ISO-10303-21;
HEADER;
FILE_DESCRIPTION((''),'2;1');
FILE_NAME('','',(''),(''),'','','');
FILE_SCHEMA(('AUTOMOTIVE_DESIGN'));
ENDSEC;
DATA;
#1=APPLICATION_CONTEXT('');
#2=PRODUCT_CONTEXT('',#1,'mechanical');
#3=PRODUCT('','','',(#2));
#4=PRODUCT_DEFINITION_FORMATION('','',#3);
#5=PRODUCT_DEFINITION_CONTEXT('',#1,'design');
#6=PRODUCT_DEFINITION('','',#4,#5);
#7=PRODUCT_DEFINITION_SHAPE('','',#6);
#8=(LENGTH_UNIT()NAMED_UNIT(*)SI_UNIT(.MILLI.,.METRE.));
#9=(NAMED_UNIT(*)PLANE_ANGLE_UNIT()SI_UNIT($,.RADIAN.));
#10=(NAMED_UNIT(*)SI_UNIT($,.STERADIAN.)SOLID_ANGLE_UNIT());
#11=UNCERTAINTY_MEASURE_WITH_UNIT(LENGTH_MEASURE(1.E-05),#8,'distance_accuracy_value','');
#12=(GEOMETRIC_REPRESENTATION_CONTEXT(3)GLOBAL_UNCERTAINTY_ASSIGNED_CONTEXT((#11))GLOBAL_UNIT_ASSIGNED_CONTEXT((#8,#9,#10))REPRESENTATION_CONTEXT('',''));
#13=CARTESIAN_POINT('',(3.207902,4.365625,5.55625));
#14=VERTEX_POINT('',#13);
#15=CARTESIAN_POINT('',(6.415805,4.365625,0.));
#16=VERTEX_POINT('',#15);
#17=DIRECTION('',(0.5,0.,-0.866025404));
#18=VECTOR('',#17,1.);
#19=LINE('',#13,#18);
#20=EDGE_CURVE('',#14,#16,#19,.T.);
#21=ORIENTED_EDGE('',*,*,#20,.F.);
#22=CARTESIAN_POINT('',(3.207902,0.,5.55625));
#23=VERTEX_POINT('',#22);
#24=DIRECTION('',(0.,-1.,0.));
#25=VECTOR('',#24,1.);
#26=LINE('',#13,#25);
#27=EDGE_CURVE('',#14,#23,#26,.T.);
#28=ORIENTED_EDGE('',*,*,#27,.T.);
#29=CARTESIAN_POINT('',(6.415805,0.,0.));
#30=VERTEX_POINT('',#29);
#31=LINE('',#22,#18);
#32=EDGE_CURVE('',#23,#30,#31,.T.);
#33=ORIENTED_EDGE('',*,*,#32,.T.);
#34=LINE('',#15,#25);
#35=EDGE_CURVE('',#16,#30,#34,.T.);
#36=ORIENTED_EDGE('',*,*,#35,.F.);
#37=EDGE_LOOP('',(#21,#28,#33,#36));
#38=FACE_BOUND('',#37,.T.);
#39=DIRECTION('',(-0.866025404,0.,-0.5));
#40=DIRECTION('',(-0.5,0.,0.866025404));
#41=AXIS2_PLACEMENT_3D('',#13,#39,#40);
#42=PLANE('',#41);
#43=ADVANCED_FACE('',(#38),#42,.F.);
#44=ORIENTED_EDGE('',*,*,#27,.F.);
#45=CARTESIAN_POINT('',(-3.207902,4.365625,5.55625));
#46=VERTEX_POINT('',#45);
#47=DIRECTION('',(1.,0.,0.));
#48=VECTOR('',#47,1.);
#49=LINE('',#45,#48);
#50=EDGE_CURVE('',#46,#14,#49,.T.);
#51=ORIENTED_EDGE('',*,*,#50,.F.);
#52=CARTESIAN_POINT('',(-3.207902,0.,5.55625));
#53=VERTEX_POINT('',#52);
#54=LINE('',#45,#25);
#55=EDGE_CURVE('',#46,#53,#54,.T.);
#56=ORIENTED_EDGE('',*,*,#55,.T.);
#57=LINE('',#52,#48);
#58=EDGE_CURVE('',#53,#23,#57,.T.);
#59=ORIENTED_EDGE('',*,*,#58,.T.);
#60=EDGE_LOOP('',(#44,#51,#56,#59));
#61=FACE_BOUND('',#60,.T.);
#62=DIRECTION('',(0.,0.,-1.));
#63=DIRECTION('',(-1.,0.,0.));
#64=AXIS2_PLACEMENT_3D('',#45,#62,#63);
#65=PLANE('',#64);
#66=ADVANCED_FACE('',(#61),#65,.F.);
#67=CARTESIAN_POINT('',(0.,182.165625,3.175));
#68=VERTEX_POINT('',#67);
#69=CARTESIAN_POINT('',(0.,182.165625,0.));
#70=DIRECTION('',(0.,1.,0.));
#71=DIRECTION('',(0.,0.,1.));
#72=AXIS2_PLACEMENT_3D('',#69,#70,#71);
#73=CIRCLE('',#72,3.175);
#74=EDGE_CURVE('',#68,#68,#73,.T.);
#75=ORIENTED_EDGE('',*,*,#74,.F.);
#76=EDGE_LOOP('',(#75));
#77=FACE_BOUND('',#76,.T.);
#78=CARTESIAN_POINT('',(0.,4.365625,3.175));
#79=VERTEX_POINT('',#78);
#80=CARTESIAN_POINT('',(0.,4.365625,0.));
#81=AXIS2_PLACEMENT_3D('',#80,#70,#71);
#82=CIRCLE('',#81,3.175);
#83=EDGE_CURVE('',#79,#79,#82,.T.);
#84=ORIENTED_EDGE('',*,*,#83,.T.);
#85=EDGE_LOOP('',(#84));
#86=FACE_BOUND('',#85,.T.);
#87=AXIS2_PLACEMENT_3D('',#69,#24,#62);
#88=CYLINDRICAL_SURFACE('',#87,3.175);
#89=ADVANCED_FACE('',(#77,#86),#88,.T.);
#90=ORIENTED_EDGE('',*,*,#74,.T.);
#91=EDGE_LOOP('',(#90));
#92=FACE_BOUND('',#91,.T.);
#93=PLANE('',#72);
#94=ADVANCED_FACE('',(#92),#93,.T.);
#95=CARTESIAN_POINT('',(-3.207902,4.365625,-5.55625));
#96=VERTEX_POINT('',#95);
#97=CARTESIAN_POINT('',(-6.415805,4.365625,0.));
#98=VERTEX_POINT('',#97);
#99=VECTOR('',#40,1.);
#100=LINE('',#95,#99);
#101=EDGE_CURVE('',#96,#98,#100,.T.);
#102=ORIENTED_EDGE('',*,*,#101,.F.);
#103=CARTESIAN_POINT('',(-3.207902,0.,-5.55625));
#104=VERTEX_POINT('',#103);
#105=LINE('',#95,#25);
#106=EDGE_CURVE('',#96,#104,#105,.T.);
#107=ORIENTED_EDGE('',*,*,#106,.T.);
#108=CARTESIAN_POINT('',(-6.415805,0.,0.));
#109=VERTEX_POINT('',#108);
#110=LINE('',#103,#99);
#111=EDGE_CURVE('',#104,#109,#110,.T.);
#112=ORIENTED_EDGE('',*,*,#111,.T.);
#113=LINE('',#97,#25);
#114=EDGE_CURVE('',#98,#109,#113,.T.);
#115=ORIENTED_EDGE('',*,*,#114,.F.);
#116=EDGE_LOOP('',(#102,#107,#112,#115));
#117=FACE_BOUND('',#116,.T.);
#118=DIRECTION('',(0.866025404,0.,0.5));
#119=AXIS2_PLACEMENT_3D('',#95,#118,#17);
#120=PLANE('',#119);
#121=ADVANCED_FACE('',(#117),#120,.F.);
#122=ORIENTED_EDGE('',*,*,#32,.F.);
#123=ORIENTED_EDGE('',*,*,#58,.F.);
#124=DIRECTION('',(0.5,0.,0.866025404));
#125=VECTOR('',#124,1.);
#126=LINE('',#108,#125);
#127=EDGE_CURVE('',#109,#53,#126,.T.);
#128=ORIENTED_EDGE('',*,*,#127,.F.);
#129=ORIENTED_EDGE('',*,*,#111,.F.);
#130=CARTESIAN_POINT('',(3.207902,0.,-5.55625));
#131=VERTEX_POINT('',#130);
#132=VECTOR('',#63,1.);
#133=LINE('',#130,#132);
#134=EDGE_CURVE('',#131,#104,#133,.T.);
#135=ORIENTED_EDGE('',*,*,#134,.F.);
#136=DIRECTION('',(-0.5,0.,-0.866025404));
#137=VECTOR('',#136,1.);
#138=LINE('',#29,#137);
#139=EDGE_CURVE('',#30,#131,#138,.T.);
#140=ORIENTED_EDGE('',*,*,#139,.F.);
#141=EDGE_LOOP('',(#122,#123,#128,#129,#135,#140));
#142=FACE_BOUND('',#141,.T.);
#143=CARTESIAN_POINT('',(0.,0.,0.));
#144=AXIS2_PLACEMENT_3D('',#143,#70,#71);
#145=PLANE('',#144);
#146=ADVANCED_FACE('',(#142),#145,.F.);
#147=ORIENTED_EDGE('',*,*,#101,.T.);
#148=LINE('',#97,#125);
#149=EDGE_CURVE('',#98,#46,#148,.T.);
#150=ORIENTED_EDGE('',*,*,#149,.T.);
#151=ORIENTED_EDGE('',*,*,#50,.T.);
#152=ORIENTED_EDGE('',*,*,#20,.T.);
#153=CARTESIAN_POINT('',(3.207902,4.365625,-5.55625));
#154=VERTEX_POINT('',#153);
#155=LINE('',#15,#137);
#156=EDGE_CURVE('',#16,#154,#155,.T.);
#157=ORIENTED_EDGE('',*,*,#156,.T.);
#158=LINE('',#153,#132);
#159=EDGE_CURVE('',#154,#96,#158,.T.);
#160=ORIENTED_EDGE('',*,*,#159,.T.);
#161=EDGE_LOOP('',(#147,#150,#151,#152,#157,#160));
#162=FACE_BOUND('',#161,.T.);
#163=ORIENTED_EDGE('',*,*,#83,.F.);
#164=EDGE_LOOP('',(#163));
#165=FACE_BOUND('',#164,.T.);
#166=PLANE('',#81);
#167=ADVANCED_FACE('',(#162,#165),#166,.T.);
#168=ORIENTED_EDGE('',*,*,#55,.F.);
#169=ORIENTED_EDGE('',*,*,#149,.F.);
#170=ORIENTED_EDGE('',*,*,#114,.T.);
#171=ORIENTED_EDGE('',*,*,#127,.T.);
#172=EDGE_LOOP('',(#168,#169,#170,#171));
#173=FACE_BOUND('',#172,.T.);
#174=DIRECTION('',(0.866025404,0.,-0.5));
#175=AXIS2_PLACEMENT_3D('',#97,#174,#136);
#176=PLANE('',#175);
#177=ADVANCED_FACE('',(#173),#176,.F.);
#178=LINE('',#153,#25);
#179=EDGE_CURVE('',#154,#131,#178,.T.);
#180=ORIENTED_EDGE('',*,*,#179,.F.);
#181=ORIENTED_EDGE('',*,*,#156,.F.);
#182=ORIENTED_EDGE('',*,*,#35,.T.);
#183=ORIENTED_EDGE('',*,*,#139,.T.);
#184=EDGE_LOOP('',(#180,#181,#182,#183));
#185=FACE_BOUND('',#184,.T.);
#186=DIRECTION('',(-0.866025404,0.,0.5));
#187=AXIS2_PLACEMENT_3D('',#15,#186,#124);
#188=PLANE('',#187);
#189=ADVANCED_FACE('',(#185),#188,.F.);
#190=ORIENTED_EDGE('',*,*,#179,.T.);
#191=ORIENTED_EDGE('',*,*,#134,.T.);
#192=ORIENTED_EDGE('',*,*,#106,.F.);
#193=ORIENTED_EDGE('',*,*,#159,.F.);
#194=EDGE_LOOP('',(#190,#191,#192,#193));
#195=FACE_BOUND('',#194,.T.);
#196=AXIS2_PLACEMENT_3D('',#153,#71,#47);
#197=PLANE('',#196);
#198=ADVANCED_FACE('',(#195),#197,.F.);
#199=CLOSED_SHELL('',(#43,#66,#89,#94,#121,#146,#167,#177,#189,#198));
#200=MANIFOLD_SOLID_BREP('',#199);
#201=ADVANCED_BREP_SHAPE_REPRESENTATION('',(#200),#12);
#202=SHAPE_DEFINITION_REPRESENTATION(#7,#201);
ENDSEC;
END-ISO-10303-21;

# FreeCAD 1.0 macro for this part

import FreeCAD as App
import Part
import Sketcher
from FreeCAD import Vector
Q = App.Units.Quantity

doc = App.newDocument("Part")
body = doc.addObject("PartDesign::Body", "Body")

# Sketch on XZ plane
sketch1 = body.newObject("Sketcher::SketchObject", "Sketch")
sketch1.AttachmentSupport = (doc.getObject("XZ_Plane"), [""])
sketch1.MapMode = "FlatFace"
sketch1.addGeometry([
    Part.LineSegment(Vector(6, 0, 0), Vector(3, -6, 0)),  # 0
    Part.LineSegment(Vector(3, -6, 0), Vector(-3, -6, 0)),  # 1
    Part.LineSegment(Vector(-3, -6, 0), Vector(-6, 0, 0)),  # 2
    Part.LineSegment(Vector(-6, 0, 0), Vector(-3, 6, 0)),  # 3
    Part.LineSegment(Vector(-3, 6, 0), Vector(3, 6, 0)),  # 4
    Part.LineSegment(Vector(3, 6, 0), Vector(6, 0, 0)),  # 5
], False)
sketch1.addConstraint([
    Sketcher.Constraint("Coincident", 0, 2, 1, 1),
    Sketcher.Constraint("Coincident", 1, 2, 2, 1),
    Sketcher.Constraint("Coincident", 2, 2, 3, 1),
    Sketcher.Constraint("Coincident", 3, 2, 4, 1),
    Sketcher.Constraint("Coincident", 4, 2, 5, 1),
    Sketcher.Constraint("Coincident", 5, 2, 0, 1),
    Sketcher.Constraint("Horizontal", 1),
    Sketcher.Constraint("Horizontal", 4),
    Sketcher.Constraint("Symmetric", 0, 2, 3, 2, -1, 1),
    Sketcher.Constraint("Symmetric", 2, 2, 5, 2, -1, 1),
    Sketcher.Constraint("PointOnObject", 2, 2, -1),
    Sketcher.Constraint("Parallel", 2, 5),
    Sketcher.Constraint("Vertical", 1, 2, 3, 2),
    Sketcher.Constraint("Angle", 0, Q("-120 deg")),
    Sketcher.Constraint("DistanceY", 0, 2, -1, 1, Q("0.21875 in")),
    Sketcher.Constraint("DistanceX", 1, 2, 1, 1, Q("6.415805 mm")),
])
pad1 = body.newObject("PartDesign::Pad", "Pad")
pad1.Profile = sketch1
pad1.Length = Q("0.171875 in")
pad1.Reversed = True

# Sketch on XZ plane
sketch2 = body.newObject("Sketcher::SketchObject", "Sketch001")
sketch2.AttachmentSupport = (doc.getObject("XZ_Plane"), [""])
sketch2.MapMode = "FlatFace"
sketch2.AttachmentOffset = App.Placement(Vector(0, 0, -0.171875 * 25.4), App.Rotation())
sketch2.addGeometry(Part.Circle(Vector(0, 0, 0), Vector(0, 0, 1), 3.2), False)
sketch2.addConstraint([
    Sketcher.Constraint("Coincident", 0, 3, -1, 1),
    Sketcher.Constraint("Diameter", 0, Q("0.25 in")),
])
pad2 = body.newObject("PartDesign::Pad", "Pad001")
pad2.Profile = sketch2
pad2.Length = Q("7 in")
pad2.Reversed = True

doc.recompute()
